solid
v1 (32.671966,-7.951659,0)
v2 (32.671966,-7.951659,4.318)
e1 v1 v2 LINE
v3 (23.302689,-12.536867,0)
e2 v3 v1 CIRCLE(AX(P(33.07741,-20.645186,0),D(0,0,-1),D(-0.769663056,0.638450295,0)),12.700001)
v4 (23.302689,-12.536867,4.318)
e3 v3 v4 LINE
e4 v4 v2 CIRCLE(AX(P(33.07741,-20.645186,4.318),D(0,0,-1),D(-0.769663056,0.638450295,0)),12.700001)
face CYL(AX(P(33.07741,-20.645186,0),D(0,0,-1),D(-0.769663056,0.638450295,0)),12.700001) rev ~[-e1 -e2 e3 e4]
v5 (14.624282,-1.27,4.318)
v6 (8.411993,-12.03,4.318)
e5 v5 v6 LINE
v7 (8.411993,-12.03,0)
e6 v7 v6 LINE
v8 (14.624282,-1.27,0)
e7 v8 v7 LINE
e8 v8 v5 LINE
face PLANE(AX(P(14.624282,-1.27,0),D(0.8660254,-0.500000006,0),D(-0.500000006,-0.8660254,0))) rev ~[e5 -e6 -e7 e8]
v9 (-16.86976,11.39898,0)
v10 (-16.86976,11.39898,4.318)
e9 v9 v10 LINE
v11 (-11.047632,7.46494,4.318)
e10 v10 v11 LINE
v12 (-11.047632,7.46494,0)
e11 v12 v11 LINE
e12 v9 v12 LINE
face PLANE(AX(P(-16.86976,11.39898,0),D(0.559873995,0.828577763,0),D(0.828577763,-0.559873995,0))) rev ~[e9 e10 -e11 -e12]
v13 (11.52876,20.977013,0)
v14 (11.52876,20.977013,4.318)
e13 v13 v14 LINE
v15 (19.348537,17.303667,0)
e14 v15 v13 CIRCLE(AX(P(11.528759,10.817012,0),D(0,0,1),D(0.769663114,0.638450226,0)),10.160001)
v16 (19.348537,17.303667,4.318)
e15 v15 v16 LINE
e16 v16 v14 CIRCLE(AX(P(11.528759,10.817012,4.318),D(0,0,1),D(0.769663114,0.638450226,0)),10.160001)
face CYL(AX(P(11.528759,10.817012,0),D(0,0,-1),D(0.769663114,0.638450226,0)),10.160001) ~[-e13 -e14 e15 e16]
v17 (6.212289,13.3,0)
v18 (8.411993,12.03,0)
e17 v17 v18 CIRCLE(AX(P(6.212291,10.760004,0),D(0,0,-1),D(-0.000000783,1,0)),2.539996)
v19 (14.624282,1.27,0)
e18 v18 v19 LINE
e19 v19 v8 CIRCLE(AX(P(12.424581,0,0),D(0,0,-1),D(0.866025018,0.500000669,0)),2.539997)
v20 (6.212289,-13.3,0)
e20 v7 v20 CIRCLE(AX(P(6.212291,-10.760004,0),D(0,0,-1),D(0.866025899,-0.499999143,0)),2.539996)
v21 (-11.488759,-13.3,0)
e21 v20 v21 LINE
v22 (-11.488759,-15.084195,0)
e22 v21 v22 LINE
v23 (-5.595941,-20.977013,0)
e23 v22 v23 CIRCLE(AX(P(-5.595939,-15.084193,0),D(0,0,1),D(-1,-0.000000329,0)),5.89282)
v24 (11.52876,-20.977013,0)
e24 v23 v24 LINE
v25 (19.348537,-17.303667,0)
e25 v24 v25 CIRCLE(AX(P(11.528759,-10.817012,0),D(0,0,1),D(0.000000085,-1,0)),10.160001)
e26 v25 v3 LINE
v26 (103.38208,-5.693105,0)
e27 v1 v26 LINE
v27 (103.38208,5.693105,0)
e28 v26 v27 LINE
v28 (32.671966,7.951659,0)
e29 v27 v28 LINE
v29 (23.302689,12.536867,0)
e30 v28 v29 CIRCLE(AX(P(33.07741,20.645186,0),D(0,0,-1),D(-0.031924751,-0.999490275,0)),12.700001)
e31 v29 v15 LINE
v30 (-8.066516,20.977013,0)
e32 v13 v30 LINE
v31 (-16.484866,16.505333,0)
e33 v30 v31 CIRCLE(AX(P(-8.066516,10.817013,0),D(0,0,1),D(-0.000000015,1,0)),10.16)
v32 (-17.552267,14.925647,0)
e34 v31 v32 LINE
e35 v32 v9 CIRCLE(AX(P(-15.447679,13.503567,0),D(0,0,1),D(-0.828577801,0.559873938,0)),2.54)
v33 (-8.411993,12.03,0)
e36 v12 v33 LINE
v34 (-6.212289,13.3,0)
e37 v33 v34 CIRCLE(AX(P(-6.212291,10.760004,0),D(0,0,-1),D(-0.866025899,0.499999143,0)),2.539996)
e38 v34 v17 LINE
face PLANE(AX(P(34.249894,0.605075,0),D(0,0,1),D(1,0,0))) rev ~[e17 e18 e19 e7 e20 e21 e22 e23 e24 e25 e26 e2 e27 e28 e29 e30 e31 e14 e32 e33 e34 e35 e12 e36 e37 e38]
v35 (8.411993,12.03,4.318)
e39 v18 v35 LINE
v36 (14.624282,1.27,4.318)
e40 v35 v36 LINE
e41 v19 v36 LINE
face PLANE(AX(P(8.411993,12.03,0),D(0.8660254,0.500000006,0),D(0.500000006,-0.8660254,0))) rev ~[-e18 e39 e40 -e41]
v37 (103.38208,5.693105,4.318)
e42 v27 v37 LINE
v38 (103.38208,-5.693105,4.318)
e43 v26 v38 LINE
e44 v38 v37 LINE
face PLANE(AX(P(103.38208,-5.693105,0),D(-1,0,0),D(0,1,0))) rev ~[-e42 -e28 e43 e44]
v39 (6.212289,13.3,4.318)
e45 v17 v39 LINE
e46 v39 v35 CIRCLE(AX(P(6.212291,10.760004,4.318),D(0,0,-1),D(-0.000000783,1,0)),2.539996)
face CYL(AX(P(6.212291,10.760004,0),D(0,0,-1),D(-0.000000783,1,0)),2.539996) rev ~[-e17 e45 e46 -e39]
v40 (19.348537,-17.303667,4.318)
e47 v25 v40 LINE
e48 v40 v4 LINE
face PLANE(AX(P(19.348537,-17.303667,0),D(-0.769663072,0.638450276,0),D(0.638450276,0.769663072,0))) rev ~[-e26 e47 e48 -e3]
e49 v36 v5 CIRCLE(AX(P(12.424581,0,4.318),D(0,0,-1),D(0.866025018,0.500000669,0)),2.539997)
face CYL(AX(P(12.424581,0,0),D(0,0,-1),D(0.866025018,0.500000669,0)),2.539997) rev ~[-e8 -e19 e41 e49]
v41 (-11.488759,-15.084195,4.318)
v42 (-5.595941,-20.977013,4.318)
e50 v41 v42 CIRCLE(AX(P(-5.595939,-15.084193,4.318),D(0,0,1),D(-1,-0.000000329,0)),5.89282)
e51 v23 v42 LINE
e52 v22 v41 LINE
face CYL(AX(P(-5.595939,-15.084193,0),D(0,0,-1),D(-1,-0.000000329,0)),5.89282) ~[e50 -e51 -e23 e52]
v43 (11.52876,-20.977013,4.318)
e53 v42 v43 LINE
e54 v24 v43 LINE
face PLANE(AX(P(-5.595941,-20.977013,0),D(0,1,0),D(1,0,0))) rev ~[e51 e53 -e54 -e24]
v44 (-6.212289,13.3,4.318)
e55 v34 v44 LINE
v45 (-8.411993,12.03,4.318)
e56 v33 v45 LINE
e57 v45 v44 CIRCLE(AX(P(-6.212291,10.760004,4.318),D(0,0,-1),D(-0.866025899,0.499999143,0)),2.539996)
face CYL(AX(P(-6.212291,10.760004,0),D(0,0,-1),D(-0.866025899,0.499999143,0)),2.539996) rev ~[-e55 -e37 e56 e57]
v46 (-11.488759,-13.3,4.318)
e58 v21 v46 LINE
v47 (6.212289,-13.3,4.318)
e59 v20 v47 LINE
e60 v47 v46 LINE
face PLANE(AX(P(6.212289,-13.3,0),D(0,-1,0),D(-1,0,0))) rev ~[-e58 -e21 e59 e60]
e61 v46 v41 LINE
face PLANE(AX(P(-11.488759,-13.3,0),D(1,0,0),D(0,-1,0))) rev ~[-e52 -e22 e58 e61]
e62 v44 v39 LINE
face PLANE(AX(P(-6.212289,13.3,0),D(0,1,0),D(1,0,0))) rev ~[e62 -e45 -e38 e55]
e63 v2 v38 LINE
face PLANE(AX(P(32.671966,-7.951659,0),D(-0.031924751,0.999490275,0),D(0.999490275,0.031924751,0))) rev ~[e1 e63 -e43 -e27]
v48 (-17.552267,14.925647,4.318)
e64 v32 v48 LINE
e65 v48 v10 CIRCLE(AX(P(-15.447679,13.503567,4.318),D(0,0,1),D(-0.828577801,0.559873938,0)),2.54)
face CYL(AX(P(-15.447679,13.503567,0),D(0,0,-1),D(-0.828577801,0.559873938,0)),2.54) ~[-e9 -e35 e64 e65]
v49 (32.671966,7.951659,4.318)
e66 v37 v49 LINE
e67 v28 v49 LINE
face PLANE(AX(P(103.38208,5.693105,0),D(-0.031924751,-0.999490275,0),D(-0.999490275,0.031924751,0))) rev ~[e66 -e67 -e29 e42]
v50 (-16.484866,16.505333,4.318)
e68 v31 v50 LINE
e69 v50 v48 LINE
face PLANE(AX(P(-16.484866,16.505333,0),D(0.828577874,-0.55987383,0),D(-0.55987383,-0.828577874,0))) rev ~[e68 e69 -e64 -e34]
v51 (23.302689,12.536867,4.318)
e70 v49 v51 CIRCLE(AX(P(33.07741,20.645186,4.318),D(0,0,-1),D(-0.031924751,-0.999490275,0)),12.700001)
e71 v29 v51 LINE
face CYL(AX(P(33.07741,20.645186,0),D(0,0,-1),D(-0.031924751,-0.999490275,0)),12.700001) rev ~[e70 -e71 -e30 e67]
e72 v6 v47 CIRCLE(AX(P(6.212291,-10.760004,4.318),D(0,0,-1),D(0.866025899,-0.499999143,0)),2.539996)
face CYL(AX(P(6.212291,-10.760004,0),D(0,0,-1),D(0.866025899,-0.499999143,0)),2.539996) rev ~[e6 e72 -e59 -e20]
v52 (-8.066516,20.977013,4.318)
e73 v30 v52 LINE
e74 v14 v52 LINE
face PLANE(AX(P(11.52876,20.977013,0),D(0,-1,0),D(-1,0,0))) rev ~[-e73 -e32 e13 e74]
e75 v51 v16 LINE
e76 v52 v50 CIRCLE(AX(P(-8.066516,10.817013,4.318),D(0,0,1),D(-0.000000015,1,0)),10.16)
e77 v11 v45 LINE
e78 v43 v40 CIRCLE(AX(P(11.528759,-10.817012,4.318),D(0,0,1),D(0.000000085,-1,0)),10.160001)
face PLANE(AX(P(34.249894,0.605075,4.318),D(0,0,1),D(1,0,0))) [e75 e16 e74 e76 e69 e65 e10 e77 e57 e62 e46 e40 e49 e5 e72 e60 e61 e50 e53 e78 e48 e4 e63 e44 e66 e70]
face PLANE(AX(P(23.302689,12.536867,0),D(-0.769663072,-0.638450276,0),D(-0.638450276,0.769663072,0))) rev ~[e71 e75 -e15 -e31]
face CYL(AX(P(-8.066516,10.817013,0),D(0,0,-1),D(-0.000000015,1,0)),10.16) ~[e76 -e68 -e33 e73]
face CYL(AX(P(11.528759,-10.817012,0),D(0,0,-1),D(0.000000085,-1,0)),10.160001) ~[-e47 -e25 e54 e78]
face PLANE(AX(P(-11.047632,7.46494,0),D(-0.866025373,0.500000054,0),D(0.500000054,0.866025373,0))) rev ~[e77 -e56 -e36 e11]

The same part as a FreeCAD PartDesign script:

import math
import FreeCAD as App
import Part
import Sketcher
from FreeCAD import Vector
Q = App.Units.Quantity

doc = App.newDocument("Part")
params = doc.addObject("Spreadsheet::Sheet", "Params")
for row, (alias, value) in enumerate([
    ("sketch1_radius", "0.0999998 in"),
    ("sketch1_radius2", "0.4 in"),
    ("sketch1_radius3", "0.5 in"),
    ("sketch1_radius4", "0.1 in"),
    ("pad1_length", "0.17 in"),
], start=1):
    params.set(f"A{row}", alias)
    params.set(f"B{row}", "=" + value)
    params.setAlias(f"B{row}", alias)

body = doc.addObject("PartDesign::Body", "Body")

# Sketch on XY plane
sketch1 = body.newObject("Sketcher::SketchObject", "Sketch")
sketch1.AttachmentSupport = (doc.getObject("XY_Plane"), [""])
sketch1.MapMode = "FlatFace"
sketch1.addGeometry([
    Part.ArcOfCircle(Part.Circle(Vector(-6.2, 10.8, 0), Vector(0, 0, 1), 2.5), math.radians(90), math.radians(150)),  # 0
    Part.LineSegment(Vector(-6.2, 13.3, 0), Vector(6.2, 13.3, 0)),  # 1
    Part.ArcOfCircle(Part.Circle(Vector(6.2, 10.8, 0), Vector(0, 0, 1), 2.5), math.radians(30), math.radians(90)),  # 2
    Part.LineSegment(Vector(8.4, 12, 0), Vector(14.6, 1.3, 0)),  # 3
    Part.ArcOfCircle(Part.Circle(Vector(12.4, 0, 0), Vector(0, 0, 1), 2.5), math.radians(-30), math.radians(30)),  # 4
    Part.LineSegment(Vector(14.6, -1.3, 0), Vector(8.4, -12, 0)),  # 5
    Part.ArcOfCircle(Part.Circle(Vector(6.2, -10.8, 0), Vector(0, 0, 1), 2.5), math.radians(-90), math.radians(-30)),  # 6
    Part.LineSegment(Vector(6.2, -13.3, 0), Vector(-11.5, -13.3, 0)),  # 7
    Part.LineSegment(Vector(-11.5, -13.3, 0), Vector(-11.5, -15.1, 0)),  # 8
    Part.ArcOfCircle(Part.Circle(Vector(-5.6, -15.1, 0), Vector(0, 0, 1), 5.9), math.radians(-180), math.radians(-90)),  # 9
    Part.LineSegment(Vector(-5.6, -21, 0), Vector(11.5, -21, 0)),  # 10
    Part.ArcOfCircle(Part.Circle(Vector(11.5, -10.8, 0), Vector(0, 0, 1), 10.2), math.radians(-90), math.radians(-40)),  # 11
    Part.LineSegment(Vector(19.3, -17.3, 0), Vector(23.3, -12.5, 0)),  # 12
    Part.ArcOfCircle(Part.Circle(Vector(33.1, -20.6, 0), Vector(0, 0, 1), 12.7), math.radians(92), math.radians(140)),  # 13
    Part.LineSegment(Vector(32.7, -8, 0), Vector(103.4, -5.7, 0)),  # 14
    Part.LineSegment(Vector(103.4, -5.7, 0), Vector(103.4, 5.7, 0)),  # 15
    Part.LineSegment(Vector(103.4, 5.7, 0), Vector(32.7, 8, 0)),  # 16
    Part.ArcOfCircle(Part.Circle(Vector(33.1, 20.6, 0), Vector(0, 0, 1), 12.7), math.radians(-140), math.radians(-92)),  # 17
    Part.LineSegment(Vector(23.3, 12.5, 0), Vector(19.3, 17.3, 0)),  # 18
    Part.ArcOfCircle(Part.Circle(Vector(11.5, 10.8, 0), Vector(0, 0, 1), 10.2), math.radians(40), math.radians(90)),  # 19
    Part.LineSegment(Vector(11.5, 21, 0), Vector(-8.1, 21, 0)),  # 20
    Part.ArcOfCircle(Part.Circle(Vector(-8.1, 10.8, 0), Vector(0, 0, 1), 10.2), math.radians(90), math.radians(146)),  # 21
    Part.LineSegment(Vector(-16.5, 16.5, 0), Vector(-17.6, 14.9, 0)),  # 22
    Part.ArcOfCircle(Part.Circle(Vector(-15.4, 13.5, 0), Vector(0, 0, 1), 2.5), math.radians(146), math.radians(236)),  # 23
    Part.LineSegment(Vector(-16.9, 11.4, 0), Vector(-11, 7.5, 0)),  # 24
    Part.LineSegment(Vector(-11, 7.5, 0), Vector(-8.4, 12, 0)),  # 25
], False)
sketch1.addConstraint([
    Sketcher.Constraint("Tangent", 0, 1, 1, 1),
    Sketcher.Constraint("Tangent", 1, 2, 2, 2),
    Sketcher.Constraint("Tangent", 2, 1, 3, 1),
    Sketcher.Constraint("Tangent", 3, 2, 4, 2),
    Sketcher.Constraint("Tangent", 4, 1, 5, 1),
    Sketcher.Constraint("Tangent", 5, 2, 6, 2),
    Sketcher.Constraint("Tangent", 6, 1, 7, 1),
    Sketcher.Constraint("Coincident", 7, 2, 8, 1),
    Sketcher.Constraint("Tangent", 8, 2, 9, 1),
    Sketcher.Constraint("Tangent", 9, 2, 10, 1),
    Sketcher.Constraint("Tangent", 10, 2, 11, 1),
    Sketcher.Constraint("Tangent", 11, 2, 12, 1),
    Sketcher.Constraint("Tangent", 12, 2, 13, 2),
    Sketcher.Constraint("Tangent", 13, 1, 14, 1),
    Sketcher.Constraint("Coincident", 14, 2, 15, 1),
    Sketcher.Constraint("Coincident", 15, 2, 16, 1),
    Sketcher.Constraint("Tangent", 16, 2, 17, 2),
    Sketcher.Constraint("Tangent", 17, 1, 18, 1),
    Sketcher.Constraint("Tangent", 18, 2, 19, 1),
    Sketcher.Constraint("Tangent", 19, 2, 20, 1),
    Sketcher.Constraint("Tangent", 20, 2, 21, 1),
    Sketcher.Constraint("Tangent", 21, 2, 22, 1),
    Sketcher.Constraint("Tangent", 22, 2, 23, 1),
    Sketcher.Constraint("Tangent", 23, 2, 24, 1),
    Sketcher.Constraint("Coincident", 24, 2, 25, 1),
    Sketcher.Constraint("Tangent", 25, 2, 0, 2),
    Sketcher.Constraint("Horizontal", 1),
    Sketcher.Constraint("Horizontal", 7),
    Sketcher.Constraint("Vertical", 8),
    Sketcher.Constraint("Horizontal", 10),
    Sketcher.Constraint("Vertical", 15),
    Sketcher.Constraint("Horizontal", 20),
    Sketcher.Constraint("Equal", 0, 2),
    Sketcher.Constraint("Equal", 2, 4),
    Sketcher.Constraint("Equal", 4, 6),
    Sketcher.Constraint("Equal", 13, 17),
    Sketcher.Constraint("Equal", 11, 19),
    Sketcher.Constraint("Equal", 19, 21),
    Sketcher.Constraint("Symmetric", 0, 3, 6, 3, -1, 1),
    Sketcher.Constraint("Symmetric", 2, 1, 25, 2, -2),
    Sketcher.Constraint("Symmetric", 13, 3, 17, 3, -1),
    Sketcher.Constraint("Symmetric", 11, 3, 19, 3, -1),
    Sketcher.Constraint("PointOnObject", 4, 3, -1),
    Sketcher.Constraint("Perpendicular", 22, 24),
    Sketcher.Constraint("Vertical", 13, 1, 16, 2),
    Sketcher.Constraint("Radius", 0, Q("0.0999998 in")),
    Sketcher.Constraint("Radius", 11, Q("0.4 in")),
    Sketcher.Constraint("Radius", 13, Q("0.5 in")),
    Sketcher.Constraint("Radius", 23, Q("0.1 in")),
    Sketcher.Constraint("Angle", 3, Q("-60 deg")),
    Sketcher.Constraint("Radius", 9, Q("5.89282 mm")),
    Sketcher.Constraint("DistanceX", 10, 1, 10, 2, Q("17.124701 mm")),
    Sketcher.Constraint("DistanceX", 7, 2, 7, 1, Q("17.701048 mm")),
    Sketcher.Constraint("DistanceY", 15, 1, 15, 2, Q("11.38621 mm")),
    Sketcher.Constraint("DistanceY", -1, 1, 0, 1, Q("13.3 mm")),
    Sketcher.Constraint("DistanceY", 11, 3, 17, 3, Q("31.462198 mm")),
    Sketcher.Constraint("DistanceX", 0, 3, 17, 3, Q("39.289701 mm")),
    Sketcher.Constraint("DistanceY", 11, 2, 12, 2, Q("4.7668 mm")),
    Sketcher.Constraint("DistanceX", 22, 2, 21, 2, Q("1.067401 mm")),
    Sketcher.Constraint("Distance", 12, Q("6.193359 mm")),
    Sketcher.Constraint("DistanceX", 20, 2, 20, 1, Q("19.595276 mm")),
    Sketcher.Constraint("DistanceX", 23, 3, -1, 1, Q("15.447679 mm")),
    Sketcher.Constraint("DistanceX", -1, 1, 14, 2, Q("103.38208 mm")),
])
sketch1.setExpression("Constraints[45]", "Params.sketch1_radius")
sketch1.setExpression("Constraints[46]", "Params.sketch1_radius2")
sketch1.setExpression("Constraints[47]", "Params.sketch1_radius3")
sketch1.setExpression("Constraints[48]", "Params.sketch1_radius4")
pad1 = body.newObject("PartDesign::Pad", "Pad")
pad1.Profile = sketch1
pad1.setExpression("Length", "Params.pad1_length")

doc.recompute()
